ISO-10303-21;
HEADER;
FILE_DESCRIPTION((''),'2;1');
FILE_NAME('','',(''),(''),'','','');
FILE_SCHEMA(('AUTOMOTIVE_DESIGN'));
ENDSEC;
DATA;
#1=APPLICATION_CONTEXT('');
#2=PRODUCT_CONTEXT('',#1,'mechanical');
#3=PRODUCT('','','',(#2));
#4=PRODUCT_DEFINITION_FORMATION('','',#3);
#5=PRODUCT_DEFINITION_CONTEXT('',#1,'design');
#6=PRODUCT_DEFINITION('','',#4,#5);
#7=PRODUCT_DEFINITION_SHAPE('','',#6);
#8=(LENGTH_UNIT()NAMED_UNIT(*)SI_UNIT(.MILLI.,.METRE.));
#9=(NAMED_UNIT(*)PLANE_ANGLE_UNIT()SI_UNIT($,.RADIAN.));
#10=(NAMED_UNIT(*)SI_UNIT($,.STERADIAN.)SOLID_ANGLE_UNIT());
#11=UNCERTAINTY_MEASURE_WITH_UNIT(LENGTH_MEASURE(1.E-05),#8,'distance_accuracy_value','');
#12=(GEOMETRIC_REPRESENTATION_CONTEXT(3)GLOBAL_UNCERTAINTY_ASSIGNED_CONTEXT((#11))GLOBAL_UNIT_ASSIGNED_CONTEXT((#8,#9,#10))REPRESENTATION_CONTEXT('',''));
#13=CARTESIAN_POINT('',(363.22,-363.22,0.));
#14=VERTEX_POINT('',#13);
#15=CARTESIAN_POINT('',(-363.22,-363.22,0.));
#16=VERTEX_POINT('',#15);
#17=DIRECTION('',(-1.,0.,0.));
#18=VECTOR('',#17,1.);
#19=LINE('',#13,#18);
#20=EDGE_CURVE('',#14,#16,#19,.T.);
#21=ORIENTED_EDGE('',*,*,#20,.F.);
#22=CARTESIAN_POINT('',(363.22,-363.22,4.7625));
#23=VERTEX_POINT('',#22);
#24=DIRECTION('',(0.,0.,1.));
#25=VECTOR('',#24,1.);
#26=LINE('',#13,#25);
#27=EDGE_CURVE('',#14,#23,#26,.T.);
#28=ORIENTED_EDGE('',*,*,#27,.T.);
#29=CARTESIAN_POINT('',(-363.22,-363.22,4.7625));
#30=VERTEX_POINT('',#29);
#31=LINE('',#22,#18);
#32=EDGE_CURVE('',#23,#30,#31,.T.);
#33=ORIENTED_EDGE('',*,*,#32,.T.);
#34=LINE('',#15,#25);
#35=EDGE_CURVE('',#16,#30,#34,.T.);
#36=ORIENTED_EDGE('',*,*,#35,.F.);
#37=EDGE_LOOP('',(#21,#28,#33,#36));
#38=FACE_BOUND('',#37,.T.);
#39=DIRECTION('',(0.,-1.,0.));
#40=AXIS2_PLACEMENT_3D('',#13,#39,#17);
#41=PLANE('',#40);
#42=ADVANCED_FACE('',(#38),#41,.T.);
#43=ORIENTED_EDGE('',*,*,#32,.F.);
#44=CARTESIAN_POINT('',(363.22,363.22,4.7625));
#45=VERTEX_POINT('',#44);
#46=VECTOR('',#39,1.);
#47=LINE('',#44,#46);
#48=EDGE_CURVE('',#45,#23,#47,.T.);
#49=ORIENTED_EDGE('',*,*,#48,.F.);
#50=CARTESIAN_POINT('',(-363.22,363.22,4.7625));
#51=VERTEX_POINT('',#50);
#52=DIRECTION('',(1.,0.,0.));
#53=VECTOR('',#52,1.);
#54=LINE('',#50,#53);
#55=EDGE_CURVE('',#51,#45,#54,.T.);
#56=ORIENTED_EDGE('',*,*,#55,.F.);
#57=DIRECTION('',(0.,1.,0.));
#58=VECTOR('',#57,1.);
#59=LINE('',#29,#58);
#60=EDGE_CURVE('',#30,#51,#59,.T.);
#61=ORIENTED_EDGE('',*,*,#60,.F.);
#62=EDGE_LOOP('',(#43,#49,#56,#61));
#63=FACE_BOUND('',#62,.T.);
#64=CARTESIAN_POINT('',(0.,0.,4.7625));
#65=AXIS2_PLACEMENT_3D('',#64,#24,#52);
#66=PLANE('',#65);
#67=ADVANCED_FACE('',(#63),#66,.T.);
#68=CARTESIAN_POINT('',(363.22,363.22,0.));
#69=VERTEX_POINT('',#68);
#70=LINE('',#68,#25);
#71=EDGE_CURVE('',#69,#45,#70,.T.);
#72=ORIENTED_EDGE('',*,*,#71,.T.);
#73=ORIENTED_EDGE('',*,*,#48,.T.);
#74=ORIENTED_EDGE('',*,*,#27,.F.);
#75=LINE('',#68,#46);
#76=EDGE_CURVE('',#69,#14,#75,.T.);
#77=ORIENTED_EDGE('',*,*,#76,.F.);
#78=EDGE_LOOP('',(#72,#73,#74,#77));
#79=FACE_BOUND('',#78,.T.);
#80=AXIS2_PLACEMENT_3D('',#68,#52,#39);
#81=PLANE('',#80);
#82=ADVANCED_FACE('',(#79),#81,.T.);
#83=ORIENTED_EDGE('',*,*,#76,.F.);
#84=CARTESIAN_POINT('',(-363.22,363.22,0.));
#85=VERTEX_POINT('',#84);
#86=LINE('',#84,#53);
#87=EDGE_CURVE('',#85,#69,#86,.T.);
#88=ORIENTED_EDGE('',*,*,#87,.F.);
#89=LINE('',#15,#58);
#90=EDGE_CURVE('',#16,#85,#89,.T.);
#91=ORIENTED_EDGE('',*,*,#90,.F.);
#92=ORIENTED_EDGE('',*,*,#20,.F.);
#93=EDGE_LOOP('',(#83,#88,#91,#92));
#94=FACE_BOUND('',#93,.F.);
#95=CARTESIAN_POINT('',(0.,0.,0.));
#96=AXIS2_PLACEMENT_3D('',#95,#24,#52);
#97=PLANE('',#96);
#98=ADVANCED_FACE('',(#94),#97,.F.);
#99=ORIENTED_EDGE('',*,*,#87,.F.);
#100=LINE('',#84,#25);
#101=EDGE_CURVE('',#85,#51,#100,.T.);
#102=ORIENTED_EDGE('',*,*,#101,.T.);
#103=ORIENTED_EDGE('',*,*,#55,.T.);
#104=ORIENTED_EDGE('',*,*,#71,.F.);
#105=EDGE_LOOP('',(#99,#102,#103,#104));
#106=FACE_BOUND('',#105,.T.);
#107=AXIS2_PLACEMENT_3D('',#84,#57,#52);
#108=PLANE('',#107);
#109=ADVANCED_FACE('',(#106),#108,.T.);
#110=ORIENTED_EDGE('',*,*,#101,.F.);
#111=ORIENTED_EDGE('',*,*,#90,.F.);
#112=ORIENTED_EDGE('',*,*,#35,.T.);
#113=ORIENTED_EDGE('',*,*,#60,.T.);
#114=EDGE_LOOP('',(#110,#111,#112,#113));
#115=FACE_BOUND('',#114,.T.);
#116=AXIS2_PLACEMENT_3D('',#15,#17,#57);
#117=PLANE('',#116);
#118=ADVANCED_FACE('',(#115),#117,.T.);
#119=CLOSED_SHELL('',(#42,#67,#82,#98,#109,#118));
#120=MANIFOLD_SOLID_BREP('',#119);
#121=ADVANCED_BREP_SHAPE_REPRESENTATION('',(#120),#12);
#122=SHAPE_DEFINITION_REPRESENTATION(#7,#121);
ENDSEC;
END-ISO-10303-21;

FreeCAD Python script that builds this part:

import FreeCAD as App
import Part
import Sketcher
from FreeCAD import Vector
Q = App.Units.Quantity

doc = App.newDocument("Part")
body = doc.addObject("PartDesign::Body", "Body")

sketch1 = body.newObject("Sketcher::SketchObject", "Sketch")
sketch1.AttachmentSupport = (doc.getObject("XY_Plane"), [""])
sketch1.MapMode = "FlatFace"
sketch1.addGeometry(Part.LineSegment(Vector(363.22, 363.22, 0), Vector(-363.22, 363.22, 0)), False)
sketch1.addGeometry(Part.LineSegment(Vector(-363.22, 363.22, 0), Vector(-363.22, -363.22, 0)), False)
sketch1.addGeometry(Part.LineSegment(Vector(-363.22, -363.22, 0), Vector(363.22, -363.22, 0)), False)
sketch1.addGeometry(Part.LineSegment(Vector(363.22, -363.22, 0), Vector(363.22, 363.22, 0)), False)
sketch1.addConstraint(Sketcher.Constraint("Coincident", 0, 2, 1, 1))
sketch1.addConstraint(Sketcher.Constraint("Coincident", 1, 2, 2, 1))
sketch1.addConstraint(Sketcher.Constraint("Coincident", 2, 2, 3, 1))
sketch1.addConstraint(Sketcher.Constraint("Coincident", 3, 2, 0, 1))
sketch1.addConstraint(Sketcher.Constraint("Horizontal", 0))
sketch1.addConstraint(Sketcher.Constraint("Vertical", 1))
sketch1.addConstraint(Sketcher.Constraint("Horizontal", 2))
sketch1.addConstraint(Sketcher.Constraint("Vertical", 3))
sketch1.addConstraint(Sketcher.Constraint("Symmetric", 0, 2, 2, 2, -1, 1))
sketch1.addConstraint(Sketcher.Constraint("Equal", 2, 1))
sketch1.addConstraint(Sketcher.Constraint("DistanceX", 0, 2, 0, 1, Q("28.6 in")))
pad1 = body.newObject("PartDesign::Pad", "Pad")
pad1.Profile = sketch1
pad1.Length = Q("0.1875 in")

doc.recompute()
